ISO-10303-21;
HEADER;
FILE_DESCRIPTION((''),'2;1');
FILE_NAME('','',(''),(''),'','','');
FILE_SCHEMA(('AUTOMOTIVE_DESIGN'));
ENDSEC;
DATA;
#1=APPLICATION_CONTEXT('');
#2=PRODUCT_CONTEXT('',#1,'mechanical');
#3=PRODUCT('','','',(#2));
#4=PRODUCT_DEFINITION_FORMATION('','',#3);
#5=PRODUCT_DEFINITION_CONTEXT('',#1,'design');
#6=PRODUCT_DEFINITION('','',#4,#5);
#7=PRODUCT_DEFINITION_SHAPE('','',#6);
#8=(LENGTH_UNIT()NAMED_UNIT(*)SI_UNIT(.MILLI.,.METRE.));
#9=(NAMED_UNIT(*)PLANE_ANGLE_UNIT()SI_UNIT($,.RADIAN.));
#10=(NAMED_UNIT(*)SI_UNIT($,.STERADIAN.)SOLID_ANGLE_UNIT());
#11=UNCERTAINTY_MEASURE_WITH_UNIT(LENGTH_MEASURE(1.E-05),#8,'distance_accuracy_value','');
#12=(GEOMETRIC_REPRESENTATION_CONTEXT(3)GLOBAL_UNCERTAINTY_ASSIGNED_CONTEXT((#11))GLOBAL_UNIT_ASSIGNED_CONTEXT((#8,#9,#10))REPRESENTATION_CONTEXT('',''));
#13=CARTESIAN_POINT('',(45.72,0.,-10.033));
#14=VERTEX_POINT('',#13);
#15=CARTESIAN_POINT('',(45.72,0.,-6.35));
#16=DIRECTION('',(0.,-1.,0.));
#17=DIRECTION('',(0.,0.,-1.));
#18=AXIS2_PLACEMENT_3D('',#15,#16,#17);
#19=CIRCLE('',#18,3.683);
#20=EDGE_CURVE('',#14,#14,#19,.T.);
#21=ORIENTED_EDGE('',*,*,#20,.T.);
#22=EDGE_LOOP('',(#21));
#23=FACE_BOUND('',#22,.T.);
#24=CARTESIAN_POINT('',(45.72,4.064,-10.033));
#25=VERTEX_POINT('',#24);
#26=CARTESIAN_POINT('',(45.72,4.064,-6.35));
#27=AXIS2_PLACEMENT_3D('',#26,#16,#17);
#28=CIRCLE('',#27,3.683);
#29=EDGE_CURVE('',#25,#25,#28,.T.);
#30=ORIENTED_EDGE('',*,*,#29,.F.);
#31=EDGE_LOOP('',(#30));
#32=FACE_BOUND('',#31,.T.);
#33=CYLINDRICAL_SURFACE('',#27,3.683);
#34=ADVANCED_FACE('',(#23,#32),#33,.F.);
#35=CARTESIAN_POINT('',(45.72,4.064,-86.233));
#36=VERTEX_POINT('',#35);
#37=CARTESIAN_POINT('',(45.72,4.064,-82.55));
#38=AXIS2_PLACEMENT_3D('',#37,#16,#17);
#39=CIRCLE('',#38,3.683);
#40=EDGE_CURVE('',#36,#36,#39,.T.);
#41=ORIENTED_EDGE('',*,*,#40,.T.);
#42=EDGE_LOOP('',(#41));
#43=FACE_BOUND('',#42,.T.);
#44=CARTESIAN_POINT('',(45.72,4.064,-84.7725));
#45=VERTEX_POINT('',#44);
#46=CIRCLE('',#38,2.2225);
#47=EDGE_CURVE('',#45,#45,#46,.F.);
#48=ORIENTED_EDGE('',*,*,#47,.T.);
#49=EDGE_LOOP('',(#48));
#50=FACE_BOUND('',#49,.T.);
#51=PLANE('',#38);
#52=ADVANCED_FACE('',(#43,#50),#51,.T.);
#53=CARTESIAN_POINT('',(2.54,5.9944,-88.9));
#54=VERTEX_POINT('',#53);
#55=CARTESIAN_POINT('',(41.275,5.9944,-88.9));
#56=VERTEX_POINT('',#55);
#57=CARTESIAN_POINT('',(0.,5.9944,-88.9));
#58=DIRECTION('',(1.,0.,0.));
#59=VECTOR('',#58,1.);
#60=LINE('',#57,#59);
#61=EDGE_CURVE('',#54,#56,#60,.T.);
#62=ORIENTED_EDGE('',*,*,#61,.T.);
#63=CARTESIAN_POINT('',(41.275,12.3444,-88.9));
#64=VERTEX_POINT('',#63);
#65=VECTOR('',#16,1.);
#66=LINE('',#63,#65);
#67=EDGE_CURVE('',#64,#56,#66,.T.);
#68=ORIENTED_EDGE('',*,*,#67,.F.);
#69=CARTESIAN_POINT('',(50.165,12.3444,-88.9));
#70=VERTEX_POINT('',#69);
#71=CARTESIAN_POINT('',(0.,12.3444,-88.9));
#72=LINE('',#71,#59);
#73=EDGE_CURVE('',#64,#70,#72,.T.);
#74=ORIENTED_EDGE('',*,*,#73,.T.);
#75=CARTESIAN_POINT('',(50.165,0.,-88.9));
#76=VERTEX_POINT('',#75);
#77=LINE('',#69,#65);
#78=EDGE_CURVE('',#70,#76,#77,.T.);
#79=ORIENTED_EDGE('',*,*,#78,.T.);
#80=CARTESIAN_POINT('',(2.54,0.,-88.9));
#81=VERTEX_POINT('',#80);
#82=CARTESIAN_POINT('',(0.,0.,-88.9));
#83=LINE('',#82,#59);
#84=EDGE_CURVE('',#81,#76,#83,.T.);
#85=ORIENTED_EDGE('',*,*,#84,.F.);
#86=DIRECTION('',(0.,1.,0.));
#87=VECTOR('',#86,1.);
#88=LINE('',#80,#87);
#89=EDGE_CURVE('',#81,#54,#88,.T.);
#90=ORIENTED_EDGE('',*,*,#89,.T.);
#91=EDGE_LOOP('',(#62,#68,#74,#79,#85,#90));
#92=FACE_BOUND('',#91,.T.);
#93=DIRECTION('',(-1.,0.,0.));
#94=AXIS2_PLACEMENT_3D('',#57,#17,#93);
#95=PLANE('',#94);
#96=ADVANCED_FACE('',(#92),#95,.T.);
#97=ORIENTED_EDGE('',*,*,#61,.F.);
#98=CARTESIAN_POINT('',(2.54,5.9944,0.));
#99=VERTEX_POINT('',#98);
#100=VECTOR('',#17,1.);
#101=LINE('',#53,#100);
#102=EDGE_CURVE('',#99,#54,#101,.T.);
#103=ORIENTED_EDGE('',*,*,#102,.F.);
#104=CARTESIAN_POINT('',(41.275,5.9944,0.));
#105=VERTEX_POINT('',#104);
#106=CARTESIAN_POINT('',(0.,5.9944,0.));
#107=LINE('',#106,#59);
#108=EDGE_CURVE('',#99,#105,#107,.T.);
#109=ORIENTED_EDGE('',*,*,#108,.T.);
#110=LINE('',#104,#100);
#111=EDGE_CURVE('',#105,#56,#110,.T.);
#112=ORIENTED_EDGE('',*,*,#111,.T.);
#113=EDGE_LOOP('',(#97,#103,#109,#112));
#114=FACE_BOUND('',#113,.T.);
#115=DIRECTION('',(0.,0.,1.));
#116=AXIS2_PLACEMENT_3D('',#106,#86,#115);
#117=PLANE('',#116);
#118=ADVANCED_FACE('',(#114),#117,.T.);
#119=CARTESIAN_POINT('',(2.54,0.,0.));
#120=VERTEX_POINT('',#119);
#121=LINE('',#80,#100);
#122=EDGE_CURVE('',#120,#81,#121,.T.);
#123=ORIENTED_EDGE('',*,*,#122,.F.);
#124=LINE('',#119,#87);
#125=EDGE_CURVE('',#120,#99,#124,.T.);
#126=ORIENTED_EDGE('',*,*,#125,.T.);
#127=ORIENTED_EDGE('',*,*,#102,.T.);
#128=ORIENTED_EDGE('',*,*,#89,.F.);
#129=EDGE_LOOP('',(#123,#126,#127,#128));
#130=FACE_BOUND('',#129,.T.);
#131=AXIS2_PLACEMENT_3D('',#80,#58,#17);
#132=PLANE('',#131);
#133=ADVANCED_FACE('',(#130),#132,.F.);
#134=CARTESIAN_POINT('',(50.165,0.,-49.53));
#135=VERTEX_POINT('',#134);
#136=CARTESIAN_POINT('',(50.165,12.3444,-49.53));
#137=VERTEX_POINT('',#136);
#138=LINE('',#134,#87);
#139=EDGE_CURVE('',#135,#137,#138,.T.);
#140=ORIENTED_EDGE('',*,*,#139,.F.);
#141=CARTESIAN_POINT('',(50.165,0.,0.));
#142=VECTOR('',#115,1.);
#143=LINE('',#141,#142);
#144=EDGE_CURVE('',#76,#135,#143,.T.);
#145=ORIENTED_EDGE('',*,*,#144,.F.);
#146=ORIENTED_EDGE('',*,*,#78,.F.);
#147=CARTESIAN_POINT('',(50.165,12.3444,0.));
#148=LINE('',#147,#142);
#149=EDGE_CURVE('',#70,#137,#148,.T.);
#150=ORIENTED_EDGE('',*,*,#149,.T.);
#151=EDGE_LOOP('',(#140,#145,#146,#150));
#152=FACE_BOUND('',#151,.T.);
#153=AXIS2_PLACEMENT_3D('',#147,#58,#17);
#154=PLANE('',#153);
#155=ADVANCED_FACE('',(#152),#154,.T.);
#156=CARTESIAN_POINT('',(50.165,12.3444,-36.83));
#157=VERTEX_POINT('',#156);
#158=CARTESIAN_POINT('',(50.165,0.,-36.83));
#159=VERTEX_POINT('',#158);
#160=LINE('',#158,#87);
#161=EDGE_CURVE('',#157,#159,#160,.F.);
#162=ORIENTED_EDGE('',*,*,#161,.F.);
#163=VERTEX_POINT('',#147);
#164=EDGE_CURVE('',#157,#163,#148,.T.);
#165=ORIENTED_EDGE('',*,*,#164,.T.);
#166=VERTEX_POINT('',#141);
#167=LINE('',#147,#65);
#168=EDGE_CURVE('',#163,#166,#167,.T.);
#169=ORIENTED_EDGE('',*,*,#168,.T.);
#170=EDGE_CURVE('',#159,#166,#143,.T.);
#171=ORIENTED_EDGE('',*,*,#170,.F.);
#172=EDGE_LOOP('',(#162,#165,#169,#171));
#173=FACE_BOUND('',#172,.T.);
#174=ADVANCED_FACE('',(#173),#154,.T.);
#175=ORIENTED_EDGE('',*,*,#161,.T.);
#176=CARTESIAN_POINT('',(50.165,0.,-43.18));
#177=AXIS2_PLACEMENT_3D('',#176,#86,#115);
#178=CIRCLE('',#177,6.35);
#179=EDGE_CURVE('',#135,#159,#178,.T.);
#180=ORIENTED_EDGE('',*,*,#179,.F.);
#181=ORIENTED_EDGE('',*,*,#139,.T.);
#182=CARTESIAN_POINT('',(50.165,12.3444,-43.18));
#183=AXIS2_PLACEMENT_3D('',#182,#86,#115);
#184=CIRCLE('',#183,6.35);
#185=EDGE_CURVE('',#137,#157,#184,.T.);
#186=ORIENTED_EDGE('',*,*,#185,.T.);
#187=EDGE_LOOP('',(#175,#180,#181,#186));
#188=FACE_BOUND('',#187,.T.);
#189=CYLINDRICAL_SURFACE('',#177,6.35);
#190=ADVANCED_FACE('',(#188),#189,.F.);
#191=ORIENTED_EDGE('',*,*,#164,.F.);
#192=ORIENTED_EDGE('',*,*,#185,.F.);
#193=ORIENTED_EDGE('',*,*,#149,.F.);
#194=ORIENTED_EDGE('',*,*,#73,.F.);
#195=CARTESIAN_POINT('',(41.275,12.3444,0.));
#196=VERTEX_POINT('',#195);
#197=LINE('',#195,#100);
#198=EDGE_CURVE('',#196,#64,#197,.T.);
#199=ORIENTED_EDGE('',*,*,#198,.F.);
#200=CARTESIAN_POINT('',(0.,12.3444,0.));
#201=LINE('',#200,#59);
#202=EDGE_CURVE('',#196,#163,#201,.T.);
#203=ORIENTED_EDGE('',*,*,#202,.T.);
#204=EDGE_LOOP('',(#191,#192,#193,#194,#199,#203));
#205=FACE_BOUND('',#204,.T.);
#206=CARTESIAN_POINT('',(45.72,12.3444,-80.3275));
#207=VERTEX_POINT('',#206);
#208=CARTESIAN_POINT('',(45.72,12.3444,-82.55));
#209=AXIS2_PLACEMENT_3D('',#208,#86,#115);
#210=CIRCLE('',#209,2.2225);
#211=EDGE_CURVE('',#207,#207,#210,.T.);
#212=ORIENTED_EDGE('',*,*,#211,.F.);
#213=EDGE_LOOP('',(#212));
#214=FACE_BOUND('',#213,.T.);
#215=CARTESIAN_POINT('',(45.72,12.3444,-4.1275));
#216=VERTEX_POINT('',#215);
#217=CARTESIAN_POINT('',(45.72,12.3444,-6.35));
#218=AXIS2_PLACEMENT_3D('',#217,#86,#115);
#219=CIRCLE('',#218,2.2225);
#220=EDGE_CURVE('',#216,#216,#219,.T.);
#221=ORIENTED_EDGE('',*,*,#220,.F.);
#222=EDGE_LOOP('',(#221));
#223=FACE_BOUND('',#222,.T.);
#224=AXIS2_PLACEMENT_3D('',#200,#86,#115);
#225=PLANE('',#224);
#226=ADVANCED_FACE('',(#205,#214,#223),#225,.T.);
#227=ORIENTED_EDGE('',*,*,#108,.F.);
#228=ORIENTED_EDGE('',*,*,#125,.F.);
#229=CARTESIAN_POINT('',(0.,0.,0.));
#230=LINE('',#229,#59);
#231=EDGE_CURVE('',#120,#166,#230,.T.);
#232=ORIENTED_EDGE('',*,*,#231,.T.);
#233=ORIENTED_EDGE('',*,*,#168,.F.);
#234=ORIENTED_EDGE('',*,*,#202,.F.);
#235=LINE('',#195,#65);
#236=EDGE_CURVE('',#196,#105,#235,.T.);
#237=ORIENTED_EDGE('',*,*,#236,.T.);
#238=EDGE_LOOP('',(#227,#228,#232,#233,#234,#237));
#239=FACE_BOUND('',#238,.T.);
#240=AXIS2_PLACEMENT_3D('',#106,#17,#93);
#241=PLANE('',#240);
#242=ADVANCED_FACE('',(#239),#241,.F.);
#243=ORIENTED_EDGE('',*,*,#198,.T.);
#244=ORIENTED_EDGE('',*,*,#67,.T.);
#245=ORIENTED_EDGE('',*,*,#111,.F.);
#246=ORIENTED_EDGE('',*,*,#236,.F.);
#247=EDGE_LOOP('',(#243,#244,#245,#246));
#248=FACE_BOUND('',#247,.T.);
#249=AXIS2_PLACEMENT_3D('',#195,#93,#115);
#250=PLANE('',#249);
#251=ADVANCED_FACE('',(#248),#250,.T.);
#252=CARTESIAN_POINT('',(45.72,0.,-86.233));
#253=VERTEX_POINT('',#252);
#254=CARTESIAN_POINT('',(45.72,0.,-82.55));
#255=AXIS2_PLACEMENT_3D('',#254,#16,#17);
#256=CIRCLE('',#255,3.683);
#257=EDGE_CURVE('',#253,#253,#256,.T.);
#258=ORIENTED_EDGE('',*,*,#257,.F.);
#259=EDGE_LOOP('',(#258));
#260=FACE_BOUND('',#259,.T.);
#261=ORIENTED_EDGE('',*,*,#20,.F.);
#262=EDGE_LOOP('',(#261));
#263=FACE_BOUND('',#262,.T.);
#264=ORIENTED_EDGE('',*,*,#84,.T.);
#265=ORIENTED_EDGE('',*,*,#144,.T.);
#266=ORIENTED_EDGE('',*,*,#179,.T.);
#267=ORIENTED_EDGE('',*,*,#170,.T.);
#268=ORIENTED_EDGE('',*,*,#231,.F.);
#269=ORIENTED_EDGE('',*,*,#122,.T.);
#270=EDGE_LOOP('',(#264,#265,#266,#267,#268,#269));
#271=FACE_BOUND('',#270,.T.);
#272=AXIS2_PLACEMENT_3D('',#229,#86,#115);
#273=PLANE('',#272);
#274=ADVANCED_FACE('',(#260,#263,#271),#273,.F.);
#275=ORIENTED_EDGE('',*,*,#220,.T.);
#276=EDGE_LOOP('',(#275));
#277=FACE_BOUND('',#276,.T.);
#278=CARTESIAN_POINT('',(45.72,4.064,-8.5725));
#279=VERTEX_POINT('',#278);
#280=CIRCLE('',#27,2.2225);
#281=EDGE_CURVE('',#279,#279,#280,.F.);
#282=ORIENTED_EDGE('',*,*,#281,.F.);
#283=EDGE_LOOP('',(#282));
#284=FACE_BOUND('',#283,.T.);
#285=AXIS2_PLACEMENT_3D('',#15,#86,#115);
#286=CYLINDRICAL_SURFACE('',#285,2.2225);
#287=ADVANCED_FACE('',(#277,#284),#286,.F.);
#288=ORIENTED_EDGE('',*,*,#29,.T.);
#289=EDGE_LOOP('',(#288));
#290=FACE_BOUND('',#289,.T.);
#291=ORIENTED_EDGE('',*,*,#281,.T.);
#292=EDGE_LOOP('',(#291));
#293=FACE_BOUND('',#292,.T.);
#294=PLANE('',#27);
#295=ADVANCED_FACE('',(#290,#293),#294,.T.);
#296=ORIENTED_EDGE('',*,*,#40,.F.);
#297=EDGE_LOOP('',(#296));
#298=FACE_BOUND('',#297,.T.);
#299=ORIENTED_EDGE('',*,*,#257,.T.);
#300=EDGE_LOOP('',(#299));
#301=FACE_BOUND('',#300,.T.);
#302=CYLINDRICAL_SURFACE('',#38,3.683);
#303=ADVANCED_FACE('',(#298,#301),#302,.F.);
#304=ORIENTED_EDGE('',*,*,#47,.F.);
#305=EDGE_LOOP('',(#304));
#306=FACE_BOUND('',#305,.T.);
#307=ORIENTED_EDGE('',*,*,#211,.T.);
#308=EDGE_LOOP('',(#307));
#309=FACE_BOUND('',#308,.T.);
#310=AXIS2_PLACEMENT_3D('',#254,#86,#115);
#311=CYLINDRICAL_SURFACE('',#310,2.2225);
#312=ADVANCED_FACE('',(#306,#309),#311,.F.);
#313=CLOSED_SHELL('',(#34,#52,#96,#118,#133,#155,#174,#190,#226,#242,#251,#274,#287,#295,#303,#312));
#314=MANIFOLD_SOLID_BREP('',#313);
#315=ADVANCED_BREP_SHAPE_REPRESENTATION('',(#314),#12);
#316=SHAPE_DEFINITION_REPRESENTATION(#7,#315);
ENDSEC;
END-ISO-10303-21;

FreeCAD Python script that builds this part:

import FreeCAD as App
import Part
import Sketcher
Q = App.Units.Quantity

doc = App.newDocument("Part")
body = doc.addObject("PartDesign::Body", "Body")

# Sketch on XZ plane
sketch1 = body.newObject("Sketcher::SketchObject", "Sketch")
sketch1.AttachmentSupport = (doc.getObject("XZ_Plane"), [""])
sketch1.MapMode = "FlatFace"
sketch1.addGeometry([
    Part.LineSegment(App.Vector(0, -88.9, 0), App.Vector(0, 0, 0)),
    Part.LineSegment(App.Vector(0, 0, 0), App.Vector(41.275, 0, 0)),
    Part.LineSegment(App.Vector(41.275, 0, 0), App.Vector(41.275, -88.9, 0)),
    Part.LineSegment(App.Vector(41.275, -88.9, 0), App.Vector(0, -88.9, 0)),
], False)
sketch1.addConstraint([
    Sketcher.Constraint("Coincident", 0, 2, 1, 1),
    Sketcher.Constraint("Coincident", 1, 2, 2, 1),
    Sketcher.Constraint("Coincident", 2, 2, 3, 1),
    Sketcher.Constraint("Coincident", 3, 2, 0, 1),
    Sketcher.Constraint("Vertical", 0),
    Sketcher.Constraint("Horizontal", 1),
    Sketcher.Constraint("Vertical", 2),
    Sketcher.Constraint("Horizontal", 3),
    Sketcher.Constraint("Coincident", 0, 2, -1, 1),
    Sketcher.Constraint("DistanceY", 0, 1, 0, 2, Q("3.5 in")),
    Sketcher.Constraint("DistanceX", 1, 1, 1, 2, Q("1.625 in")),
])
pad1 = body.newObject("PartDesign::Pad", "Pad")
pad1.Profile = sketch1
pad1.Length = Q("0.236 in")
pad1.Reversed = True

# Sketch on XZ plane
sketch2 = body.newObject("Sketcher::SketchObject", "Sketch001")
sketch2.AttachmentSupport = (doc.getObject("XZ_Plane"), [""])
sketch2.MapMode = "FlatFace"
sketch2.addGeometry([
    Part.LineSegment(App.Vector(41.275, -88.9, 0), App.Vector(41.275, 0, 0)),
    Part.LineSegment(App.Vector(41.275, 0, 0), App.Vector(50.165, 0, 0)),
    Part.LineSegment(App.Vector(50.165, 0, 0), App.Vector(50.165, -88.9, 0)),
    Part.LineSegment(App.Vector(50.165, -88.9, 0), App.Vector(41.275, -88.9, 0)),
], False)
sketch2.addConstraint([
    Sketcher.Constraint("Coincident", 0, 2, 1, 1),
    Sketcher.Constraint("Coincident", 1, 2, 2, 1),
    Sketcher.Constraint("Coincident", 2, 2, 3, 1),
    Sketcher.Constraint("Coincident", 3, 2, 0, 1),
    Sketcher.Constraint("Vertical", 0),
    Sketcher.Constraint("Horizontal", 1),
    Sketcher.Constraint("Vertical", 2),
    Sketcher.Constraint("Horizontal", 3),
    Sketcher.Constraint("PointOnObject", 0, 2, -1),
    Sketcher.Constraint("DistanceY", 0, 1, 0, 2, Q("3.5 in")),
    Sketcher.Constraint("DistanceX", 1, 1, 1, 2, Q("0.35 in")),
    Sketcher.Constraint("DistanceX", -1, 1, 0, 2, Q("1.625 in")),
])
pad2 = body.newObject("PartDesign::Pad", "Pad001")
pad2.Profile = sketch2
pad2.Length = Q("0.486 in")
pad2.Reversed = True

# Sketch on XZ plane
sketch3 = body.newObject("Sketcher::SketchObject", "Sketch002")
sketch3.AttachmentSupport = (doc.getObject("XZ_Plane"), [""])
sketch3.MapMode = "FlatFace"
sketch3.AttachmentOffset = App.Placement(App.Vector(0, 0, -0.486 * 25.4), App.Rotation())
sketch3.addGeometry([
    Part.Circle(App.Vector(45.72, -82.55, 0), App.Vector(0, 0, 1), 2.2225),
    Part.Circle(App.Vector(45.72, -6.35, 0), App.Vector(0, 0, 1), 2.2225),
], False)
sketch3.addConstraint([
    Sketcher.Constraint("Equal", 0, 1),
    Sketcher.Constraint("Vertical", 0, 3, 1, 3),
    Sketcher.Constraint("Diameter", 0, Q("0.175 in")),
    Sketcher.Constraint("DistanceY", 0, 3, 1, 3, Q("3 in")),
    Sketcher.Constraint("DistanceX", -1, 1, 0, 3, Q("1.8 in")),
    Sketcher.Constraint("DistanceY", 0, 3, -1, 1, Q("3.25 in")),
])
pocket1 = body.newObject("PartDesign::Pocket", "Pocket")
pocket1.Profile = sketch3
pocket1.Type = "ThroughAll"
pocket1.Midplane = True

# Sketch on XZ plane
sketch4 = body.newObject("Sketcher::SketchObject", "Sketch003")
sketch4.AttachmentSupport = (doc.getObject("XZ_Plane"), [""])
sketch4.MapMode = "FlatFace"
sketch4.addGeometry([
    Part.Circle(App.Vector(45.72, -6.35, 0), App.Vector(0, 0, 1), 3.683),
    Part.Circle(App.Vector(45.72, -82.55, 0), App.Vector(0, 0, 1), 3.683),
], False)
sketch4.addConstraint([
    Sketcher.Constraint("Equal", 0, 1),
    Sketcher.Constraint("Vertical", 0, 3, 1, 3),
    Sketcher.Constraint("Diameter", 0, Q("0.29 in")),
    Sketcher.Constraint("DistanceY", 1, 3, 0, 3, Q("3 in")),
    Sketcher.Constraint("DistanceX", -1, 1, 0, 3, Q("1.8 in")),
    Sketcher.Constraint("DistanceY", 0, 3, -1, 1, Q("0.25 in")),
])
pocket2 = body.newObject("PartDesign::Pocket", "Pocket001")
pocket2.Profile = sketch4
pocket2.Length = Q("0.16 in")

# Sketch on XZ plane
sketch5 = body.newObject("Sketcher::SketchObject", "Sketch004")
sketch5.AttachmentSupport = (doc.getObject("XZ_Plane"), [""])
sketch5.MapMode = "FlatFace"
sketch5.AttachmentOffset = App.Placement(App.Vector(0, 0, -0.236 * 25.4), App.Rotation())
sketch5.addGeometry([
    Part.LineSegment(App.Vector(0, -88.9, 0), App.Vector(0, 0, 0)),
    Part.LineSegment(App.Vector(0, 0, 0), App.Vector(2.54, 0, 0)),
    Part.LineSegment(App.Vector(2.54, 0, 0), App.Vector(2.54, -88.9, 0)),
    Part.LineSegment(App.Vector(2.54, -88.9, 0), App.Vector(0, -88.9, 0)),
], False)
sketch5.addConstraint([
    Sketcher.Constraint("Coincident", 0, 2, 1, 1),
    Sketcher.Constraint("Coincident", 1, 2, 2, 1),
    Sketcher.Constraint("Coincident", 2, 2, 3, 1),
    Sketcher.Constraint("Coincident", 3, 2, 0, 1),
    Sketcher.Constraint("Vertical", 0),
    Sketcher.Constraint("Horizontal", 1),
    Sketcher.Constraint("Vertical", 2),
    Sketcher.Constraint("Horizontal", 3),
    Sketcher.Constraint("Coincident", 0, 2, -1, 1),
    Sketcher.Constraint("DistanceX", 1, 1, 1, 2, Q("0.1 in")),
    Sketcher.Constraint("DistanceY", 0, 1, 0, 2, Q("3.5 in")),
])
pocket3 = body.newObject("PartDesign::Pocket", "Pocket002")
pocket3.Profile = sketch5
pocket3.Type = "ThroughAll"
pocket3.Midplane = True

# Sketch on XZ plane
sketch6 = body.newObject("Sketcher::SketchObject", "Sketch005")
sketch6.AttachmentSupport = (doc.getObject("XZ_Plane"), [""])
sketch6.MapMode = "FlatFace"
sketch6.AttachmentOffset = App.Placement(App.Vector(0, 0, -0.486 * 25.4), App.Rotation())
sketch6.addGeometry(Part.Circle(App.Vector(50.165, -43.18, 0), App.Vector(0, 0, 1), 6.35), False)
sketch6.addConstraint([
    Sketcher.Constraint("Diameter", 0, Q("0.5 in")),
    Sketcher.Constraint("DistanceY", 0, 3, -1, 1, Q("1.7 in")),
    Sketcher.Constraint("DistanceX", -1, 1, 0, 3, Q("1.975 in")),
])
pocket4 = body.newObject("PartDesign::Pocket", "Pocket003")
pocket4.Profile = sketch6
pocket4.Type = "ThroughAll"
pocket4.Midplane = True

doc.recompute()
